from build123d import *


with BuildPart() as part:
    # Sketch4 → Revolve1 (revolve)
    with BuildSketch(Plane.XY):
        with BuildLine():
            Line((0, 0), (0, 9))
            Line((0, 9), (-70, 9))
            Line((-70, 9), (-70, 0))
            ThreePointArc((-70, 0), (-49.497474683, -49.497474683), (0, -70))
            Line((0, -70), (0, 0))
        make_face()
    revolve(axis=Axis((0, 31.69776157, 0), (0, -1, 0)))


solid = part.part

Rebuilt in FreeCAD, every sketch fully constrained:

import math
import FreeCAD as App
import Part
import Sketcher

V = App.Vector
Q = App.Units.Quantity

doc = App.newDocument("Part")
body = doc.addObject("PartDesign::Body", "Body")

# Sketch on XY plane
sketch1 = body.newObject("Sketcher::SketchObject", "Sketch")
sketch1.AttachmentSupport = (doc.getObject("XY_Plane"), [""])
sketch1.MapMode = "FlatFace"
sketch1.addGeometry([
    Part.LineSegment(V(0, 9, 0), V(-70, 9, 0)),
    Part.LineSegment(V(-70, 9, 0), V(-70, 0, 0)),
    Part.ArcOfCircle(Part.Circle(V(0, 0, 0), V(0, 0, 1), 70), math.radians(180), math.radians(270)),
    Part.LineSegment(V(0, -70, 0), V(0, 9, 0)),
], False)
sketch1.addConstraint([
    Sketcher.Constraint("Coincident", 0, 2, 1, 1),
    Sketcher.Constraint("Tangent", 1, 2, 2, 1),
    Sketcher.Constraint("Coincident", 2, 2, 3, 1),
    Sketcher.Constraint("Coincident", 3, 2, 0, 1),
    Sketcher.Constraint("Horizontal", 0),
    Sketcher.Constraint("Vertical", 1),
    Sketcher.Constraint("Vertical", 3),
    Sketcher.Constraint("Coincident", 2, 3, -1, 1),
    Sketcher.Constraint("PointOnObject", 2, 2, -2),
    Sketcher.Constraint("Radius", 2, Q("70 mm")),
    Sketcher.Constraint("DistanceY", 1, 2, 1, 1, Q("9 mm")),
])
revolution = body.newObject("PartDesign::Revolution", "Revolution")
revolution.Profile = sketch1
revolution.ReferenceAxis = (sketch1, ["V_Axis"])
revolution.Angle = 360

doc.recompute()
